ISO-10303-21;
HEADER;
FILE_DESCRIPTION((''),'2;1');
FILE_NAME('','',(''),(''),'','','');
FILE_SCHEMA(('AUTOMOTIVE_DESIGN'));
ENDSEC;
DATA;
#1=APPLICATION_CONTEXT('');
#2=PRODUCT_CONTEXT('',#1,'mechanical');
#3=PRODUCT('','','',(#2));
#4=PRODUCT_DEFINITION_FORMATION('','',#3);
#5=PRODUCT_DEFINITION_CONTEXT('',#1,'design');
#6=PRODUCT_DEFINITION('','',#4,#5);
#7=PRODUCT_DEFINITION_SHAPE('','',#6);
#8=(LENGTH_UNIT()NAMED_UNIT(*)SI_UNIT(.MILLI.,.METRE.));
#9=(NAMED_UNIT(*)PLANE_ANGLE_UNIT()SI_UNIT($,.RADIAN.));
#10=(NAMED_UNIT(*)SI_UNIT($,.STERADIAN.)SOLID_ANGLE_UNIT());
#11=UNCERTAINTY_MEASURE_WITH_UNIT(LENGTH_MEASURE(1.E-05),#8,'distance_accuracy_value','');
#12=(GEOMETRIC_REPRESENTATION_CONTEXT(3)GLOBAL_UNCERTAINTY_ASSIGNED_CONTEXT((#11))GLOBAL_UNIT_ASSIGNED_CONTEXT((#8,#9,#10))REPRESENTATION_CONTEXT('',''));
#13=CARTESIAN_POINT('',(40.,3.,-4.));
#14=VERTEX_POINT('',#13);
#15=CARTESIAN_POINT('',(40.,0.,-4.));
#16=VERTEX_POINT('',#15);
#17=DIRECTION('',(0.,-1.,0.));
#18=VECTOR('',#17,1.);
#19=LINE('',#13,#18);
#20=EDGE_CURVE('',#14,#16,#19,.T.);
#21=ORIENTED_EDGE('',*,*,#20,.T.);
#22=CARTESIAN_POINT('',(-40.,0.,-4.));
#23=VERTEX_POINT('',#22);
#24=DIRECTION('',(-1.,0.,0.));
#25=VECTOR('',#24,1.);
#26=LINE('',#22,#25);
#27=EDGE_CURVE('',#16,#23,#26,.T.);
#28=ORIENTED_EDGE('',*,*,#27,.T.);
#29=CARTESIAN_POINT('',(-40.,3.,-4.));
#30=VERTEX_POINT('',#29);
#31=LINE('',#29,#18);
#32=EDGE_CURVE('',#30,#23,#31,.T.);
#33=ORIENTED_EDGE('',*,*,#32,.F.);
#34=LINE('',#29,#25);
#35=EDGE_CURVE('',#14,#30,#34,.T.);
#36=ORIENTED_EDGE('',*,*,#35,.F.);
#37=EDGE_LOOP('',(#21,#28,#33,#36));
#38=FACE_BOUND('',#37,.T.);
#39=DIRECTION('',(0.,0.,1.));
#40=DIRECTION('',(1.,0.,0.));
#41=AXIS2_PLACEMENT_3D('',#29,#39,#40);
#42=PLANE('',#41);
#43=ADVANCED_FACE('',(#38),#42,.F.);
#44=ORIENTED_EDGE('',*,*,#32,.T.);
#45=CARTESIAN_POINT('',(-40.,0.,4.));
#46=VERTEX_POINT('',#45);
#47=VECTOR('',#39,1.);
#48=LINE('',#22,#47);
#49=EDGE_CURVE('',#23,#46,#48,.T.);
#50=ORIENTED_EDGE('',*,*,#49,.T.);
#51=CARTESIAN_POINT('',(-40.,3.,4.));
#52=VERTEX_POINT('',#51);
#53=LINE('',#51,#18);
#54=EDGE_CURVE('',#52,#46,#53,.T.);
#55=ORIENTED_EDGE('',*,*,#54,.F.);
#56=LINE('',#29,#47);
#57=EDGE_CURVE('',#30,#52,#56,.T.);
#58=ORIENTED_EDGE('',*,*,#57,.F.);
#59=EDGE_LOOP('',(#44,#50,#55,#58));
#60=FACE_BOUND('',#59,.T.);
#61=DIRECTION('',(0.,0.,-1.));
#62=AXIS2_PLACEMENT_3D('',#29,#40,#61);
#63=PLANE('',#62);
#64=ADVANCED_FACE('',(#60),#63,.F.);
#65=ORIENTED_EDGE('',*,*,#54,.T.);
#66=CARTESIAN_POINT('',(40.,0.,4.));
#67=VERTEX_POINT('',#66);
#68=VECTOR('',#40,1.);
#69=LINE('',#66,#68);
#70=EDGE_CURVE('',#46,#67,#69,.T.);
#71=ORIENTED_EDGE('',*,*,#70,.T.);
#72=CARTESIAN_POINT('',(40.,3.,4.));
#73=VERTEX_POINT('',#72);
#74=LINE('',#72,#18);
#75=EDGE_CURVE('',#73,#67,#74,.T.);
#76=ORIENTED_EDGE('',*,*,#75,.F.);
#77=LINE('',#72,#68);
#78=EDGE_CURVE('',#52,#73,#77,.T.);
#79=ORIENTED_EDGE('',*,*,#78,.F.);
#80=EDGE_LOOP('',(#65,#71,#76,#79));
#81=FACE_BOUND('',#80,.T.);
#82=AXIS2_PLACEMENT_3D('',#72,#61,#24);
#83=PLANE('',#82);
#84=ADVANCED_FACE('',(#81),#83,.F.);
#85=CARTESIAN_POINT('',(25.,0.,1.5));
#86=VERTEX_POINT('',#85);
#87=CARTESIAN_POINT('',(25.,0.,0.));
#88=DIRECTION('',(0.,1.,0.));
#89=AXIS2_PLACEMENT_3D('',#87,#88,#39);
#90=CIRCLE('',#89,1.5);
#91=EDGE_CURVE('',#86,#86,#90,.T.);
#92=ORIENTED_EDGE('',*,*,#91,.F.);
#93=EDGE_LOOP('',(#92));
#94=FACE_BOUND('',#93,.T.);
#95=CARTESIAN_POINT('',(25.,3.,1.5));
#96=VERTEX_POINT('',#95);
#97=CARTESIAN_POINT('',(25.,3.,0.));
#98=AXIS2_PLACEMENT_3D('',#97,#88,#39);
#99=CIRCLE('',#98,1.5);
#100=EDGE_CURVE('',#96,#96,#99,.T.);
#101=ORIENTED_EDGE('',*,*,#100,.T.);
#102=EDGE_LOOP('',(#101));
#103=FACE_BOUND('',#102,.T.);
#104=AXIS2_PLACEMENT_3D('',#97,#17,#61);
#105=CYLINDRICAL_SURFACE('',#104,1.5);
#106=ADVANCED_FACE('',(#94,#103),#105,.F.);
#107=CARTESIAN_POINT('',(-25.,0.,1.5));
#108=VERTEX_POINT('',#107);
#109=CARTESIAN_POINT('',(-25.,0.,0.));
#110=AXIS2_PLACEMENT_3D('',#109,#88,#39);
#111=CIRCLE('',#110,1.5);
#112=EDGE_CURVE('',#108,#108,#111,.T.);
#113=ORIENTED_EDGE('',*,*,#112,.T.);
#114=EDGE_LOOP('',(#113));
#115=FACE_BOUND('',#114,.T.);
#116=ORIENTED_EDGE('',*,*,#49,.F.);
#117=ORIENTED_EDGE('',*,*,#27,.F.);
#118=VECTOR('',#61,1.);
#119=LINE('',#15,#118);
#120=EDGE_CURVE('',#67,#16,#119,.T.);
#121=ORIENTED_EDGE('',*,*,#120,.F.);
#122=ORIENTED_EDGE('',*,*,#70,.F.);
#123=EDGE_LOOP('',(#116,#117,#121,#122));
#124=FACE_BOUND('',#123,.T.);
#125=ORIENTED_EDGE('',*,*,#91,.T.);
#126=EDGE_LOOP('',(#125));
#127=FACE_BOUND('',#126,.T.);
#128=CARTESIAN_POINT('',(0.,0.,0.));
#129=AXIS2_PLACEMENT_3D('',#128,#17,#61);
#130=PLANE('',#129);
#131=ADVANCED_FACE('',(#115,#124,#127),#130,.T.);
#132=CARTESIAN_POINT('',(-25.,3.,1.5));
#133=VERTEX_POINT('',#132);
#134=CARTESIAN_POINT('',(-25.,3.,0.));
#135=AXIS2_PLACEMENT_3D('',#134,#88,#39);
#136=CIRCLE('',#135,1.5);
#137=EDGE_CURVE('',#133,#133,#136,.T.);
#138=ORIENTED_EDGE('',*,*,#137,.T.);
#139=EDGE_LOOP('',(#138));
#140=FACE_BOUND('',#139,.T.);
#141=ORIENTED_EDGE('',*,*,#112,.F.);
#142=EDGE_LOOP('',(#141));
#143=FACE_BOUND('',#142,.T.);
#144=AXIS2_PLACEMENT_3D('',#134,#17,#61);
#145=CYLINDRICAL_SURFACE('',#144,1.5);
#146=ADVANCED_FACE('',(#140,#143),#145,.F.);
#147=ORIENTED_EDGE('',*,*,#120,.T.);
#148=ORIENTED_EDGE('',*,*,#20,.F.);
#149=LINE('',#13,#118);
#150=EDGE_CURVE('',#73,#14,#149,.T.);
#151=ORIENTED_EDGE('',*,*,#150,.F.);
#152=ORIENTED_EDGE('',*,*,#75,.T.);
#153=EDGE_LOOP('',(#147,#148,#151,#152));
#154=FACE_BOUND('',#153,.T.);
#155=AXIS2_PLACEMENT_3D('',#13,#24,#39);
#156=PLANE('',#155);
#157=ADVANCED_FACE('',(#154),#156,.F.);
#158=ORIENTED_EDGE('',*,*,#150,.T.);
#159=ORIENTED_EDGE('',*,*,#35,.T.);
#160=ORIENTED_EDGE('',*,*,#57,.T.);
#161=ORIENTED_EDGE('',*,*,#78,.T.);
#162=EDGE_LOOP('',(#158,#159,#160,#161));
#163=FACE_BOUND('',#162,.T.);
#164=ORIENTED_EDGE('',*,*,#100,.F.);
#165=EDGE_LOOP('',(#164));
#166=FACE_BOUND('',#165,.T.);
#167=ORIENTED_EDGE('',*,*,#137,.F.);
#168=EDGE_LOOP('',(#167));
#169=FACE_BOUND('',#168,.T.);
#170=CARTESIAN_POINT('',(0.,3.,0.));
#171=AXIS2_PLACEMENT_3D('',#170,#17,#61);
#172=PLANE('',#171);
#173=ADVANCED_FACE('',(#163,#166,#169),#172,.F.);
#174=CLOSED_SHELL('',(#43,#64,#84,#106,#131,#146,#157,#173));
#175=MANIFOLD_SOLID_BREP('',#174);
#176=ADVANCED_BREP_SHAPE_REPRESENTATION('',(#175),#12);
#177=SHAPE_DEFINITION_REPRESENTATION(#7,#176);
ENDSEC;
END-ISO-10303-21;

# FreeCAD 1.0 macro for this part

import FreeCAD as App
import Part
import Sketcher
from FreeCAD import Vector

doc = App.newDocument("Part")
body = doc.addObject("PartDesign::Body", "Body")

# Sketch on XZ plane
sketch1 = body.newObject("Sketcher::SketchObject", "Sketch")
sketch1.AttachmentSupport = (doc.getObject("XZ_Plane"), [""])
sketch1.MapMode = "FlatFace"
sketch1.addGeometry(Part.LineSegment(Vector(-40, -4, 0), Vector(-40, 4, 0)), False)
sketch1.addGeometry(Part.LineSegment(Vector(-40, 4, 0), Vector(40, 4, 0)), False)
sketch1.addGeometry(Part.LineSegment(Vector(40, 4, 0), Vector(40, -4, 0)), False)
sketch1.addGeometry(Part.LineSegment(Vector(40, -4, 0), Vector(-40, -4, 0)), False)
sketch1.addGeometry(Part.Circle(Vector(-25, 0, 0), Vector(0, 0, 1), 1.5), False)
sketch1.addGeometry(Part.Circle(Vector(25, 0, 0), Vector(0, 0, 1), 1.5), False)
sketch1.addConstraint(Sketcher.Constraint("Coincident", 0, 2, 1, 1))
sketch1.addConstraint(Sketcher.Constraint("Coincident", 1, 2, 2, 1))
sketch1.addConstraint(Sketcher.Constraint("Coincident", 2, 2, 3, 1))
sketch1.addConstraint(Sketcher.Constraint("Coincident", 3, 2, 0, 1))
sketch1.addConstraint(Sketcher.Constraint("Vertical", 0))
sketch1.addConstraint(Sketcher.Constraint("Horizontal", 1))
sketch1.addConstraint(Sketcher.Constraint("Vertical", 2))
sketch1.addConstraint(Sketcher.Constraint("Horizontal", 3))
sketch1.addConstraint(Sketcher.Constraint("Equal", 4, 5))
sketch1.addConstraint(Sketcher.Constraint("Symmetric", 4, 3, 5, 3, -1, 1))
sketch1.addConstraint(Sketcher.Constraint("Symmetric", 0, 2, 2, 2, -1, 1))
sketch1.addConstraint(Sketcher.Constraint("PointOnObject", 4, 3, -1))
sketch1.addConstraint(Sketcher.Constraint("Diameter", 4, 3.0))
sketch1.addConstraint(Sketcher.Constraint("DistanceX", 1, 1, 1, 2, 80.0))
sketch1.addConstraint(Sketcher.Constraint("DistanceY", 0, 1, 0, 2, 8.0))
sketch1.addConstraint(Sketcher.Constraint("DistanceX", 4, 3, -1, 1, 25.0))
pad1 = body.newObject("PartDesign::Pad", "Pad")
pad1.Profile = sketch1
pad1.Length = 3
pad1.Reversed = True

doc.recompute()
